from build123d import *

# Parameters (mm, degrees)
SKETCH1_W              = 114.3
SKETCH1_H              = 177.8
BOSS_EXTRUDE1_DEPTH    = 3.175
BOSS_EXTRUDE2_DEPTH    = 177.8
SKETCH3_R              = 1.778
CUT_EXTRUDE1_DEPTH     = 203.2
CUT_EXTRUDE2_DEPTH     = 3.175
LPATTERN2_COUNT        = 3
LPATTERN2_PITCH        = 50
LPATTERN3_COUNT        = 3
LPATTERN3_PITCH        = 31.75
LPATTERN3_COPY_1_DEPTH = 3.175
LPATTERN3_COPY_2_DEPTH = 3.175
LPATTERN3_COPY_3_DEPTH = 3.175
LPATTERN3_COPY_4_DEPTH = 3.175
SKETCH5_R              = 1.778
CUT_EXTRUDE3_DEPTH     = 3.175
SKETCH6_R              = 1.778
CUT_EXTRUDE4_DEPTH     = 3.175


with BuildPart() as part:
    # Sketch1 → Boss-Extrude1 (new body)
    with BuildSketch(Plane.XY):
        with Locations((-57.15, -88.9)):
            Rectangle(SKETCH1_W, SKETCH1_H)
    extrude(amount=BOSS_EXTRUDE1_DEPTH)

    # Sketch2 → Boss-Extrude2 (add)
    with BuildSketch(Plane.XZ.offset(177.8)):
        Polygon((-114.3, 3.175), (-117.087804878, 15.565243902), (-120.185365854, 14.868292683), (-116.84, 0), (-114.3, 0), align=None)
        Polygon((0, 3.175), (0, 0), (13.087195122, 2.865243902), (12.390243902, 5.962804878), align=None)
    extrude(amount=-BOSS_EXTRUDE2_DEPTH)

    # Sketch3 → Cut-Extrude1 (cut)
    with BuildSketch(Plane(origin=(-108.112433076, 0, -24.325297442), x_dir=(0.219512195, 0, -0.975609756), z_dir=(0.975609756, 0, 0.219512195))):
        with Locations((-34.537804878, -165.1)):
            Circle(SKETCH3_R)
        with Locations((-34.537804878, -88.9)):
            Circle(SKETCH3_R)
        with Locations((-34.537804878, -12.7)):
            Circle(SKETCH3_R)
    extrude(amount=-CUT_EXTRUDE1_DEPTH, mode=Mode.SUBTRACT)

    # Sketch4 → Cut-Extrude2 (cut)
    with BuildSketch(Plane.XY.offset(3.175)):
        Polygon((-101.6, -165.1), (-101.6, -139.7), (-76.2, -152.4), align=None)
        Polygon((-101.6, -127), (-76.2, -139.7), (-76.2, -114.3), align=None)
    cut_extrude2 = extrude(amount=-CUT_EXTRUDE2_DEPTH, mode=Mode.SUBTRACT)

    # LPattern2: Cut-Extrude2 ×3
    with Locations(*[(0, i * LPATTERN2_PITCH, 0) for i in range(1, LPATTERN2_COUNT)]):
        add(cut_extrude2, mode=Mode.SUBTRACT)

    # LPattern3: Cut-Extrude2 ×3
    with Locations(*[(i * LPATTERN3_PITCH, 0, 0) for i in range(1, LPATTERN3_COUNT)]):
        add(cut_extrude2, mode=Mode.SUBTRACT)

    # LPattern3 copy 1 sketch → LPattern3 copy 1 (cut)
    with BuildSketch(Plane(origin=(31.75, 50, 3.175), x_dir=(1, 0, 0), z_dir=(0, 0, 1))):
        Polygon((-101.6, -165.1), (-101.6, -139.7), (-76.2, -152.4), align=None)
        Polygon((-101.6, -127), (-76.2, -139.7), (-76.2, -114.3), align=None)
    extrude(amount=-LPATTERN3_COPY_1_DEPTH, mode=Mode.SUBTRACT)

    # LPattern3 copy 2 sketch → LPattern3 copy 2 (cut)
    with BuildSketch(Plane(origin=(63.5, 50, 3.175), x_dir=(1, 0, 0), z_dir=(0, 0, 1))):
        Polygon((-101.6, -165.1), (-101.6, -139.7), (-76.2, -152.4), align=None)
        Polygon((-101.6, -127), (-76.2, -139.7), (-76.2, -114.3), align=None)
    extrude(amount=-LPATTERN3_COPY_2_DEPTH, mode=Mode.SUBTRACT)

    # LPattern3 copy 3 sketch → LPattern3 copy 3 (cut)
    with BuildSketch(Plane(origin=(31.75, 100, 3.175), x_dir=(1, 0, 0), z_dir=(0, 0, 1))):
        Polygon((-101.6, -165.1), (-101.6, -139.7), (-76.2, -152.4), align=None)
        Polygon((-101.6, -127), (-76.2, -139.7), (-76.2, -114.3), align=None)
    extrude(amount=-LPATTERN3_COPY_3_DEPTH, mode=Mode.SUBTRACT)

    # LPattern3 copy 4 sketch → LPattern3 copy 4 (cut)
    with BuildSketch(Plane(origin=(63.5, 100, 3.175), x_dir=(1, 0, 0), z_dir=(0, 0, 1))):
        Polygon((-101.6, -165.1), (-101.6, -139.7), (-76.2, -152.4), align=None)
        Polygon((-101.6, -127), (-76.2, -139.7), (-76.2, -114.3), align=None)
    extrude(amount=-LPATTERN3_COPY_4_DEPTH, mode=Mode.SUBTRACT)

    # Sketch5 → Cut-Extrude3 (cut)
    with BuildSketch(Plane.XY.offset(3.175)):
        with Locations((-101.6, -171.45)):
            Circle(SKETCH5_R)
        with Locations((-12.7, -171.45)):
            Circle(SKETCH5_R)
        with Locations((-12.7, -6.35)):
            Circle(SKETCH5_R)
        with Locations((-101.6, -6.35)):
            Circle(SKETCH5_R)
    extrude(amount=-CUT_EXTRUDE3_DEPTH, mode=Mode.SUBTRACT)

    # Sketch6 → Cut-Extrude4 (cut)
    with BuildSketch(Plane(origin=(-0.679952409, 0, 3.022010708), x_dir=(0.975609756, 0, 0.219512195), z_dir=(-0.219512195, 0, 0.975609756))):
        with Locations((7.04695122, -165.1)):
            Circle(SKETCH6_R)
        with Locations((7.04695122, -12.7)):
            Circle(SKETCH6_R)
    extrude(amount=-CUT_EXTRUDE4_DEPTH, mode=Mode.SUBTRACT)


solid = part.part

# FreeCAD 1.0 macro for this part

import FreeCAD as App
import Part
import Sketcher
from FreeCAD import Vector
Q = App.Units.Quantity


def add_polygon(sketch, points):
    """Adds a closed chain of lines whose ends are joined by coincident constraints."""
    first, n = sketch.GeometryCount, len(points)
    for a, b in zip(points, points[1:] + points[:1]):
        sketch.addGeometry(Part.LineSegment(App.Vector(*a, 0), App.Vector(*b, 0)), False)
    for i in range(n):
        sketch.addConstraint(Sketcher.Constraint("Coincident", first + i, 2, first + (i + 1) % n, 1))

doc = App.newDocument("Part")
body = doc.addObject("PartDesign::Body", "Body")

# Sketch on XY plane
sketch1 = doc.addObject("Sketcher::SketchObject", "Sketch")
body.addObject(sketch1)
sketch1.AttachmentSupport = (doc.XY_Plane, [""])
sketch1.MapMode = "FlatFace"
add_polygon(sketch1, [(-114.3, 0), (-114.3, -177.8), (0, -177.8), (0, 0)])  # lines 0-3
sketch1.addConstraint(Sketcher.Constraint("Vertical", 0))
sketch1.addConstraint(Sketcher.Constraint("Horizontal", 1))
sketch1.addConstraint(Sketcher.Constraint("Vertical", 2))
sketch1.addConstraint(Sketcher.Constraint("Horizontal", 3))
sketch1.addConstraint(Sketcher.Constraint("Coincident", 2, 2, -1, 1))
sketch1.addConstraint(Sketcher.Constraint("DistanceY", 0, 2, 0, 1, Q("7 in")))
sketch1.addConstraint(Sketcher.Constraint("DistanceX", 1, 1, 1, 2, Q("4.5 in")))
pad1 = doc.addObject("PartDesign::Pad", "Pad")
body.addObject(pad1)
pad1.Profile = sketch1
pad1.Length = Q("0.125 in")

# Sketch on XZ plane
sketch2 = doc.addObject("Sketcher::SketchObject", "Sketch001")
body.addObject(sketch2)
sketch2.AttachmentSupport = (doc.XZ_Plane, [""])
sketch2.MapMode = "FlatFace"
sketch2.AttachmentOffset = App.Placement(Vector(0, 0, 7 * 25.4), App.Rotation())
add_polygon(sketch2, [(-114.3, 3.175), (-117.087805, 15.565244), (-120.185366, 14.868293), (-116.84, 0), (-114.3, 0)])  # lines 0-4
add_polygon(sketch2, [(0, 3.175), (0, 0), (13.087195, 2.865244), (12.390244, 5.962805)])  # lines 5-8
sketch2.addConstraint(Sketcher.Constraint("Horizontal", 3))
sketch2.addConstraint(Sketcher.Constraint("Vertical", 4))
sketch2.addConstraint(Sketcher.Constraint("Vertical", 5))
sketch2.addConstraint(Sketcher.Constraint("Coincident", 5, 2, -1, 1))
sketch2.addConstraint(Sketcher.Constraint("PointOnObject", 2, 2, -1))
sketch2.addConstraint(Sketcher.Constraint("Perpendicular", 0, 1))
sketch2.addConstraint(Sketcher.Constraint("Perpendicular", 1, 2))
sketch2.addConstraint(Sketcher.Constraint("Parallel", 2, 7))
sketch2.addConstraint(Sketcher.Constraint("Perpendicular", 7, 8))
sketch2.addConstraint(Sketcher.Constraint("Horizontal", 4, 2, 8, 2))
sketch2.addConstraint(Sketcher.Constraint("Equal", 1, 7))
sketch2.addConstraint(Sketcher.Constraint("Equal", 0, 8))
sketch2.addConstraint(Sketcher.Constraint("DistanceX", 3, 1, 3, 2, Q("0.1 in")))
sketch2.addConstraint(Sketcher.Constraint("Distance", 0, Q("0.5 in")))
sketch2.addConstraint(Sketcher.Constraint("Distance", 2, Q("0.6 in")))
sketch2.addConstraint(Sketcher.Constraint("DistanceX", 2, 2, -1, 1, Q("4.6 in")))
sketch2.addConstraint(Sketcher.Constraint("DistanceY", 6, 2, 0, 2, Q("0.5 in")))
pad2 = doc.addObject("PartDesign::Pad", "Pad001")
body.addObject(pad2)
pad2.Profile = sketch2
pad2.Length = Q("7 in")
pad2.Reversed = True

# Sketch on an angled plane
sketch3 = doc.addObject("Sketcher::SketchObject", "Sketch002")
body.addObject(sketch3)
sketch3.Placement = App.Placement(Vector(-108.112433, 0, -24.325297), App.Rotation(Vector(0.219512195, 0, -0.975609756), Vector(0, 1, 0), Vector(0.975609756, 0, 0.219512195), "ZXY"))
sketch3.addGeometry(Part.Circle(Vector(-34.537805, -165.1, 0), Vector(0, 0, 1), 1.778), False)
sketch3.addGeometry(Part.Circle(Vector(-34.537805, -88.9, 0), Vector(0, 0, 1), 1.778), False)
sketch3.addGeometry(Part.Circle(Vector(-34.537805, -12.7, 0), Vector(0, 0, 1), 1.778), False)
sketch3.addConstraint(Sketcher.Constraint("Equal", 0, 1))
sketch3.addConstraint(Sketcher.Constraint("Equal", 1, 2))
sketch3.addConstraint(Sketcher.Constraint("Vertical", 0, 3, 1, 3))
sketch3.addConstraint(Sketcher.Constraint("Vertical", 1, 3, 2, 3))
sketch3.addConstraint(Sketcher.Constraint("Diameter", 0, Q("0.14 in")))
sketch3.addConstraint(Sketcher.Constraint("DistanceY", 0, 3, 1, 3, Q("3 in")))
sketch3.addConstraint(Sketcher.Constraint("DistanceY", 1, 3, 2, 3, Q("3 in")))
sketch3.addConstraint(Sketcher.Constraint("DistanceY", 0, 3, -1, 1, Q("6.5 in")))
sketch3.addConstraint(Sketcher.Constraint("DistanceX", 0, 3, -1, 1, 34.537805))
pocket1 = doc.addObject("PartDesign::Pocket", "Pocket")
body.addObject(pocket1)
pocket1.Profile = sketch3
pocket1.Length = Q("8 in")

# Sketch on XY plane
sketch4 = doc.addObject("Sketcher::SketchObject", "Sketch003")
body.addObject(sketch4)
sketch4.AttachmentSupport = (doc.XY_Plane, [""])
sketch4.MapMode = "FlatFace"
sketch4.AttachmentOffset = App.Placement(Vector(0, 0, 0.125 * 25.4), App.Rotation())
add_polygon(sketch4, [(-101.6, -139.7), (-101.6, -165.1), (-76.2, -152.4)])  # lines 0-2
add_polygon(sketch4, [(-101.6, -127), (-76.2, -139.7), (-76.2, -114.3)])  # lines 3-5
sketch4.addConstraint(Sketcher.Constraint("Vertical", 0))
sketch4.addConstraint(Sketcher.Constraint("Vertical", 4))
sketch4.addConstraint(Sketcher.Constraint("Parallel", 2, 3))
sketch4.addConstraint(Sketcher.Constraint("Parallel", 1, 5))
sketch4.addConstraint(Sketcher.Constraint("Horizontal", 2, 2, 3, 2))
sketch4.addConstraint(Sketcher.Constraint("Vertical", 1, 2, 3, 2))
sketch4.addConstraint(Sketcher.Constraint("Vertical", 2, 2, 5, 2))
sketch4.addConstraint(Sketcher.Constraint("Equal", 1, 2))
sketch4.addConstraint(Sketcher.Constraint("DistanceY", 0, 2, 0, 1, Q("1 in")))
sketch4.addConstraint(Sketcher.Constraint("DistanceX", 0, 2, -1, 1, Q("4 in")))
sketch4.addConstraint(Sketcher.Constraint("DistanceX", 1, 2, -1, 1, Q("3 in")))
sketch4.addConstraint(Sketcher.Constraint("DistanceY", 1, 2, -1, 1, Q("6 in")))
pocket2 = doc.addObject("PartDesign::Pocket", "Pocket001")
body.addObject(pocket2)
pocket2.Profile = sketch4
pocket2.Length = Q("0.125 in")
doc.recompute()

linearpattern = doc.addObject("PartDesign::LinearPattern", "LinearPattern")
body.addObject(linearpattern)
linearpattern.Originals = [pocket2]
linearpattern.Direction = (doc.Y_Axis, [""])
linearpattern.Mode = "offset"
linearpattern.Offset = 50
linearpattern.Occurrences = 3
body.Tip = linearpattern
doc.recompute()

linearpattern2 = doc.addObject("PartDesign::LinearPattern", "LinearPattern001")
body.addObject(linearpattern2)
linearpattern2.Originals = [pocket2]
linearpattern2.Direction = (doc.X_Axis, [""])
linearpattern2.Mode = "offset"
linearpattern2.Offset = Q("1.25 in")
linearpattern2.Occurrences = 3
body.Tip = linearpattern2

# Sketch on XY plane
sketch5 = doc.addObject("Sketcher::SketchObject", "Sketch004")
body.addObject(sketch5)
sketch5.AttachmentSupport = (doc.XY_Plane, [""])
sketch5.MapMode = "FlatFace"
sketch5.AttachmentOffset = App.Placement(Vector(0, 0, 0.125 * 25.4), App.Rotation())
add_polygon(sketch5, [(-69.85, -89.7), (-69.85, -115.1), (-44.45, -102.4)])  # lines 0-2
add_polygon(sketch5, [(-69.85, -77), (-44.45, -89.7), (-44.45, -64.3)])  # lines 3-5
sketch5.addConstraint(Sketcher.Constraint("Vertical", 0))
sketch5.addConstraint(Sketcher.Constraint("Vertical", 4))
sketch5.addConstraint(Sketcher.Constraint("Parallel", 2, 3))
sketch5.addConstraint(Sketcher.Constraint("Parallel", 1, 5))
sketch5.addConstraint(Sketcher.Constraint("Horizontal", 2, 2, 3, 2))
sketch5.addConstraint(Sketcher.Constraint("Vertical", 1, 2, 3, 2))
sketch5.addConstraint(Sketcher.Constraint("Vertical", 2, 2, 5, 2))
sketch5.addConstraint(Sketcher.Constraint("Equal", 1, 2))
sketch5.addConstraint(Sketcher.Constraint("DistanceY", 0, 2, 0, 1, Q("1 in")))
sketch5.addConstraint(Sketcher.Constraint("DistanceX", 0, 2, 1, 2, Q("1 in")))
sketch5.addConstraint(Sketcher.Constraint("DistanceX", 0, 2, -1, 1, Q("2.75 in")))
sketch5.addConstraint(Sketcher.Constraint("DistanceY", 0, 2, -1, 1, 115.1))
pocket3 = doc.addObject("PartDesign::Pocket", "Pocket002")
body.addObject(pocket3)
pocket3.Profile = sketch5
pocket3.Length = Q("0.125 in")

# Sketch on XY plane
sketch6 = doc.addObject("Sketcher::SketchObject", "Sketch005")
body.addObject(sketch6)
sketch6.AttachmentSupport = (doc.XY_Plane, [""])
sketch6.MapMode = "FlatFace"
sketch6.AttachmentOffset = App.Placement(Vector(0, 0, 0.125 * 25.4), App.Rotation())
add_polygon(sketch6, [(-38.1, -89.7), (-38.1, -115.1), (-12.7, -102.4)])  # lines 0-2
add_polygon(sketch6, [(-38.1, -77), (-12.7, -89.7), (-12.7, -64.3)])  # lines 3-5
sketch6.addConstraint(Sketcher.Constraint("Vertical", 0))
sketch6.addConstraint(Sketcher.Constraint("Vertical", 4))
sketch6.addConstraint(Sketcher.Constraint("Parallel", 2, 3))
sketch6.addConstraint(Sketcher.Constraint("Parallel", 1, 5))
sketch6.addConstraint(Sketcher.Constraint("Horizontal", 2, 2, 3, 2))
sketch6.addConstraint(Sketcher.Constraint("Vertical", 1, 2, 3, 2))
sketch6.addConstraint(Sketcher.Constraint("Vertical", 2, 2, 5, 2))
sketch6.addConstraint(Sketcher.Constraint("Equal", 1, 2))
sketch6.addConstraint(Sketcher.Constraint("DistanceY", 0, 2, 0, 1, Q("1 in")))
sketch6.addConstraint(Sketcher.Constraint("DistanceX", 0, 2, 1, 2, Q("1 in")))
sketch6.addConstraint(Sketcher.Constraint("DistanceX", 0, 2, -1, 1, Q("1.5 in")))
sketch6.addConstraint(Sketcher.Constraint("DistanceY", 0, 2, -1, 1, 115.1))
pocket4 = doc.addObject("PartDesign::Pocket", "Pocket003")
body.addObject(pocket4)
pocket4.Profile = sketch6
pocket4.Length = Q("0.125 in")

# Sketch on XY plane
sketch7 = doc.addObject("Sketcher::SketchObject", "Sketch006")
body.addObject(sketch7)
sketch7.AttachmentSupport = (doc.XY_Plane, [""])
sketch7.MapMode = "FlatFace"
sketch7.AttachmentOffset = App.Placement(Vector(0, 0, 0.125 * 25.4), App.Rotation())
add_polygon(sketch7, [(-69.85, -39.7), (-69.85, -65.1), (-44.45, -52.4)])  # lines 0-2
add_polygon(sketch7, [(-69.85, -27), (-44.45, -39.7), (-44.45, -14.3)])  # lines 3-5
sketch7.addConstraint(Sketcher.Constraint("Vertical", 0))
sketch7.addConstraint(Sketcher.Constraint("Vertical", 4))
sketch7.addConstraint(Sketcher.Constraint("Parallel", 2, 3))
sketch7.addConstraint(Sketcher.Constraint("Parallel", 1, 5))
sketch7.addConstraint(Sketcher.Constraint("Horizontal", 2, 2, 3, 2))
sketch7.addConstraint(Sketcher.Constraint("Vertical", 1, 2, 3, 2))
sketch7.addConstraint(Sketcher.Constraint("Vertical", 2, 2, 5, 2))
sketch7.addConstraint(Sketcher.Constraint("Equal", 1, 2))
sketch7.addConstraint(Sketcher.Constraint("DistanceY", 0, 2, 0, 1, Q("1 in")))
sketch7.addConstraint(Sketcher.Constraint("DistanceX", 0, 2, 1, 2, Q("1 in")))
sketch7.addConstraint(Sketcher.Constraint("DistanceX", 0, 2, -1, 1, Q("2.75 in")))
sketch7.addConstraint(Sketcher.Constraint("DistanceY", 0, 2, -1, 1, 65.1))
pocket5 = doc.addObject("PartDesign::Pocket", "Pocket004")
body.addObject(pocket5)
pocket5.Profile = sketch7
pocket5.Length = Q("0.125 in")

# Sketch on XY plane
sketch8 = doc.addObject("Sketcher::SketchObject", "Sketch007")
body.addObject(sketch8)
sketch8.AttachmentSupport = (doc.XY_Plane, [""])
sketch8.MapMode = "FlatFace"
sketch8.AttachmentOffset = App.Placement(Vector(0, 0, 0.125 * 25.4), App.Rotation())
add_polygon(sketch8, [(-38.1, -39.7), (-38.1, -65.1), (-12.7, -52.4)])  # lines 0-2
add_polygon(sketch8, [(-38.1, -27), (-12.7, -39.7), (-12.7, -14.3)])  # lines 3-5
sketch8.addConstraint(Sketcher.Constraint("Vertical", 0))
sketch8.addConstraint(Sketcher.Constraint("Vertical", 4))
sketch8.addConstraint(Sketcher.Constraint("Parallel", 2, 3))
sketch8.addConstraint(Sketcher.Constraint("Parallel", 1, 5))
sketch8.addConstraint(Sketcher.Constraint("Horizontal", 2, 2, 3, 2))
sketch8.addConstraint(Sketcher.Constraint("Vertical", 1, 2, 3, 2))
sketch8.addConstraint(Sketcher.Constraint("Vertical", 2, 2, 5, 2))
sketch8.addConstraint(Sketcher.Constraint("Equal", 1, 2))
sketch8.addConstraint(Sketcher.Constraint("DistanceY", 0, 2, 0, 1, Q("1 in")))
sketch8.addConstraint(Sketcher.Constraint("DistanceX", 0, 2, 1, 2, Q("1 in")))
sketch8.addConstraint(Sketcher.Constraint("DistanceX", 0, 2, -1, 1, Q("1.5 in")))
sketch8.addConstraint(Sketcher.Constraint("DistanceY", 0, 2, -1, 1, 65.1))
pocket6 = doc.addObject("PartDesign::Pocket", "Pocket005")
body.addObject(pocket6)
pocket6.Profile = sketch8
pocket6.Length = Q("0.125 in")

# Sketch on XY plane
sketch9 = doc.addObject("Sketcher::SketchObject", "Sketch008")
body.addObject(sketch9)
sketch9.AttachmentSupport = (doc.XY_Plane, [""])
sketch9.MapMode = "FlatFace"
sketch9.AttachmentOffset = App.Placement(Vector(0, 0, 0.125 * 25.4), App.Rotation())
sketch9.addGeometry(Part.Circle(Vector(-101.6, -171.45, 0), Vector(0, 0, 1), 1.778), False)
sketch9.addGeometry(Part.Circle(Vector(-12.7, -171.45, 0), Vector(0, 0, 1), 1.778), False)
sketch9.addGeometry(Part.Circle(Vector(-12.7, -6.35, 0), Vector(0, 0, 1), 1.778), False)
sketch9.addGeometry(Part.Circle(Vector(-101.6, -6.35, 0), Vector(0, 0, 1), 1.778), False)
sketch9.addConstraint(Sketcher.Constraint("Equal", 0, 1))
sketch9.addConstraint(Sketcher.Constraint("Equal", 1, 2))
sketch9.addConstraint(Sketcher.Constraint("Equal", 2, 3))
sketch9.addConstraint(Sketcher.Constraint("Horizontal", 0, 3, 1, 3))
sketch9.addConstraint(Sketcher.Constraint("Horizontal", 2, 3, 3, 3))
sketch9.addConstraint(Sketcher.Constraint("Vertical", 1, 3, 2, 3))
sketch9.addConstraint(Sketcher.Constraint("Vertical", 0, 3, 3, 3))
sketch9.addConstraint(Sketcher.Constraint("Diameter", 0, Q("0.14 in")))
sketch9.addConstraint(Sketcher.Constraint("DistanceX", 0, 3, -1, 1, Q("4 in")))
sketch9.addConstraint(Sketcher.Constraint("DistanceX", 1, 3, -1, 1, Q("0.5 in")))
sketch9.addConstraint(Sketcher.Constraint("DistanceY", 1, 3, 2, 3, Q("6.5 in")))
sketch9.addConstraint(Sketcher.Constraint("DistanceY", 0, 3, -1, 1, Q("6.75 in")))
pocket7 = doc.addObject("PartDesign::Pocket", "Pocket006")
body.addObject(pocket7)
pocket7.Profile = sketch9
pocket7.Length = Q("0.125 in")

# Sketch on an angled plane
sketch10 = doc.addObject("Sketcher::SketchObject", "Sketch009")
body.addObject(sketch10)
sketch10.Placement = App.Placement(Vector(-0.679952, 0, 3.022011), App.Rotation(Vector(0.975609756, 0, 0.219512195), Vector(0, 1, 0), Vector(-0.219512195, 0, 0.975609756), "ZXY"))
sketch10.addGeometry(Part.Circle(Vector(7.046951, -165.1, 0), Vector(0, 0, 1), 1.778), False)
sketch10.addGeometry(Part.Circle(Vector(7.046951, -12.7, 0), Vector(0, 0, 1), 1.778), False)
sketch10.addConstraint(Sketcher.Constraint("Equal", 0, 1))
sketch10.addConstraint(Sketcher.Constraint("Vertical", 0, 3, 1, 3))
sketch10.addConstraint(Sketcher.Constraint("Diameter", 0, Q("0.14 in")))
sketch10.addConstraint(Sketcher.Constraint("DistanceY", 0, 3, 1, 3, Q("6 in")))
sketch10.addConstraint(Sketcher.Constraint("DistanceY", 0, 3, -1, 1, Q("6.5 in")))
sketch10.addConstraint(Sketcher.Constraint("DistanceX", -1, 1, 0, 3, 7.046951))
pocket8 = doc.addObject("PartDesign::Pocket", "Pocket007")
body.addObject(pocket8)
pocket8.Profile = sketch10
pocket8.Length = Q("0.125 in")

doc.recompute()
